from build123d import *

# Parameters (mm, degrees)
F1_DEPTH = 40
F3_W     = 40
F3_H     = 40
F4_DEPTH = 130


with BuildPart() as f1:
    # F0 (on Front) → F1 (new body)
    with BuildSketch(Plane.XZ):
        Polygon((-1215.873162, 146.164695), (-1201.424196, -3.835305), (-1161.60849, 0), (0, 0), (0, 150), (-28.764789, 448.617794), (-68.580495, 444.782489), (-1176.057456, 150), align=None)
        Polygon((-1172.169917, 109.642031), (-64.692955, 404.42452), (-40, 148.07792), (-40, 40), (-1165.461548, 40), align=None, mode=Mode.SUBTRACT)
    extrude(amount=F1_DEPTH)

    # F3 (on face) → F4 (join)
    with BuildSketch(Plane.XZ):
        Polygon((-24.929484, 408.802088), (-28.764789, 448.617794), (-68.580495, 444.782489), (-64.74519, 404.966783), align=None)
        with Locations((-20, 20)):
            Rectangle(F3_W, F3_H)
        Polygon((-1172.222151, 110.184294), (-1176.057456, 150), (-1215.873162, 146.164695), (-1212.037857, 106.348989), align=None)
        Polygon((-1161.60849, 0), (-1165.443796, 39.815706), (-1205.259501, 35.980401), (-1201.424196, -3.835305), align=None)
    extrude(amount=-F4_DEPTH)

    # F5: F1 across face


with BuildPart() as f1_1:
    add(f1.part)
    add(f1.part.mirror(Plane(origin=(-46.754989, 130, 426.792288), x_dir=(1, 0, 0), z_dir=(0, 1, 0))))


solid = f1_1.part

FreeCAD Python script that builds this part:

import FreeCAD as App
import Part
import Sketcher
from FreeCAD import Vector
Q = App.Units.Quantity


def add_polygon(sketch, points):
    """Adds a closed chain of lines whose ends are joined by coincident constraints."""
    first, n = sketch.GeometryCount, len(points)
    for a, b in zip(points, points[1:] + points[:1]):
        sketch.addGeometry(Part.LineSegment(App.Vector(*a, 0), App.Vector(*b, 0)), False)
    for i in range(n):
        sketch.addConstraint(Sketcher.Constraint("Coincident", first + i, 2, first + (i + 1) % n, 1))

doc = App.newDocument("Part")
body = doc.addObject("PartDesign::Body", "Body")

# Sketch on XZ plane
sketch1 = body.newObject("Sketcher::SketchObject", "Sketch")
sketch1.AttachmentSupport = (doc.getObject("XZ_Plane"), [""])
sketch1.MapMode = "FlatFace"
add_polygon(sketch1, [(-1216, 146), (-1201, -4), (-1162, 0), (0, 0), (0, 150), (-29, 449), (-69, 445), (-1176, 150)])  # lines 0-7
add_polygon(sketch1, [(-1165, 40), (-1172, 110), (-65, 404), (-40, 148), (-40, 40)])  # lines 8-12
sketch1.addConstraint(Sketcher.Constraint("Horizontal", 2))
sketch1.addConstraint(Sketcher.Constraint("Vertical", 3))
sketch1.addConstraint(Sketcher.Constraint("Vertical", 11))
sketch1.addConstraint(Sketcher.Constraint("Horizontal", 12))
sketch1.addConstraint(Sketcher.Constraint("Coincident", 2, 2, -1, 1))
sketch1.addConstraint(Sketcher.Constraint("Perpendicular", 0, 1))
sketch1.addConstraint(Sketcher.Constraint("Perpendicular", 1, 4))
sketch1.addConstraint(Sketcher.Constraint("Perpendicular", 4, 5))
sketch1.addConstraint(Sketcher.Constraint("Parallel", 5, 7))
sketch1.addConstraint(Sketcher.Constraint("Perpendicular", 7, 8))
sketch1.addConstraint(Sketcher.Constraint("Parallel", 6, 9))
sketch1.addConstraint(Sketcher.Constraint("Parallel", 8, 10))
sketch1.addConstraint(Sketcher.Constraint("Horizontal", 3, 2, 6, 2))
sketch1.addConstraint(Sketcher.Constraint("Equal", 1, 5))
sketch1.addConstraint(Sketcher.Constraint("Equal", 5, 7))
sketch1.addConstraint(Sketcher.Constraint("Equal", 6, 9))
sketch1.addConstraint(Sketcher.Constraint("DistanceY", 3, 1, 3, 2, Q("150 mm")))
sketch1.addConstraint(Sketcher.Constraint("Distance", 1, Q("40 mm")))
sketch1.addConstraint(Sketcher.Constraint("Distance", 4, Q("300 mm")))
sketch1.addConstraint(Sketcher.Constraint("DistanceX", 10, 2, -1, 1, Q("40 mm")))
sketch1.addConstraint(Sketcher.Constraint("DistanceY", -1, 1, 11, 2, Q("40 mm")))
sketch1.addConstraint(Sketcher.Constraint("Distance", 0, Q("150.694302 mm")))
sketch1.addConstraint(Sketcher.Constraint("DistanceX", 2, 1, 2, 2, Q("1161.60849 mm")))
sketch1.addConstraint(Sketcher.Constraint("DistanceX", 12, 2, 12, 1, Q("1125.461548 mm")))
sketch1.addConstraint(Sketcher.Constraint("DistanceX", 6, 2, 9, 2, Q("1111.364501 mm")))
pad1 = body.newObject("PartDesign::Pad", "Pad")
pad1.Profile = sketch1
pad1.Length = 40

# Sketch on XZ plane
sketch2 = body.newObject("Sketcher::SketchObject", "Sketch001")
sketch2.AttachmentSupport = (doc.getObject("XZ_Plane"), [""])
sketch2.MapMode = "FlatFace"
add_polygon(sketch2, [(-25, 409), (-29, 449), (-69, 445), (-65, 405)])  # lines 0-3
add_polygon(sketch2, [(-40, 40), (-40, 0), (0, 0), (0, 40)])  # lines 4-7
add_polygon(sketch2, [(-1172, 110), (-1176, 150), (-1216, 146), (-1212, 106)])  # lines 8-11
add_polygon(sketch2, [(-1162, 0), (-1165, 40), (-1205, 36), (-1201, -4)])  # lines 12-15
sketch2.addConstraint(Sketcher.Constraint("Vertical", 4))
sketch2.addConstraint(Sketcher.Constraint("Horizontal", 5))
sketch2.addConstraint(Sketcher.Constraint("Vertical", 6))
sketch2.addConstraint(Sketcher.Constraint("Horizontal", 7))
sketch2.addConstraint(Sketcher.Constraint("Coincident", 5, 2, -1, 1))
sketch2.addConstraint(Sketcher.Constraint("PointOnObject", 15, 2, -1))
sketch2.addConstraint(Sketcher.Constraint("Perpendicular", 0, 1))
sketch2.addConstraint(Sketcher.Constraint("Perpendicular", 1, 2))
sketch2.addConstraint(Sketcher.Constraint("Perpendicular", 2, 3))
sketch2.addConstraint(Sketcher.Constraint("Perpendicular", 3, 8))
sketch2.addConstraint(Sketcher.Constraint("Perpendicular", 8, 9))
sketch2.addConstraint(Sketcher.Constraint("Perpendicular", 9, 10))
sketch2.addConstraint(Sketcher.Constraint("Perpendicular", 10, 11))
sketch2.addConstraint(Sketcher.Constraint("Perpendicular", 11, 12))
sketch2.addConstraint(Sketcher.Constraint("Perpendicular", 12, 13))
sketch2.addConstraint(Sketcher.Constraint("Perpendicular", 13, 14))
sketch2.addConstraint(Sketcher.Constraint("Perpendicular", 14, 15))
sketch2.addConstraint(Sketcher.Constraint("Equal", 7, 4))
sketch2.addConstraint(Sketcher.Constraint("Equal", 0, 1))
sketch2.addConstraint(Sketcher.Constraint("Equal", 3, 8))
sketch2.addConstraint(Sketcher.Constraint("Equal", 8, 9))
sketch2.addConstraint(Sketcher.Constraint("Equal", 11, 12))
sketch2.addConstraint(Sketcher.Constraint("Equal", 12, 13))
sketch2.addConstraint(Sketcher.Constraint("DistanceX", 5, 1, 5, 2, Q("40 mm")))
sketch2.addConstraint(Sketcher.Constraint("Distance", 0, Q("40 mm")))
sketch2.addConstraint(Sketcher.Constraint("DistanceY", -1, 1, 8, 2, Q("150 mm")))
sketch2.addConstraint(Sketcher.Constraint("DistanceX", 13, 2, -1, 1, Q("1205.259501 mm")))
sketch2.addConstraint(Sketcher.Constraint("DistanceY", -1, 1, 13, 2, Q("35.980401 mm")))
sketch2.addConstraint(Sketcher.Constraint("DistanceX", 0, 2, -1, 1, Q("28.764789 mm")))
sketch2.addConstraint(Sketcher.Constraint("DistanceY", -1, 1, 1, 2, Q("444.782489 mm")))
sketch2.addConstraint(Sketcher.Constraint("DistanceX", 9, 2, -1, 1, Q("1215.873162 mm")))
pad2 = body.newObject("PartDesign::Pad", "Pad001")
pad2.Profile = sketch2
pad2.Length = 130
pad2.Reversed = True
body2 = doc.addObject("PartDesign::Body", "Body001")
doc.recompute()

body2.BaseFeature = body
doc.recompute()

mirroring = doc.addObject("Part::Mirroring", "Mirroring")
mirroring.Source = body
mirroring.Base = Vector(-46.754989, 130, 426.792288)
mirroring.Normal = Vector(0, 1, 0)
body3 = doc.addObject("PartDesign::Body", "Body002")
body3.BaseFeature = mirroring
boolean = body2.newObject("PartDesign::Boolean", "Boolean")
boolean.Type = "Fuse"
boolean.addObjects([body3])
doc.recompute()
mirroring.Visibility = False

doc.recompute()
